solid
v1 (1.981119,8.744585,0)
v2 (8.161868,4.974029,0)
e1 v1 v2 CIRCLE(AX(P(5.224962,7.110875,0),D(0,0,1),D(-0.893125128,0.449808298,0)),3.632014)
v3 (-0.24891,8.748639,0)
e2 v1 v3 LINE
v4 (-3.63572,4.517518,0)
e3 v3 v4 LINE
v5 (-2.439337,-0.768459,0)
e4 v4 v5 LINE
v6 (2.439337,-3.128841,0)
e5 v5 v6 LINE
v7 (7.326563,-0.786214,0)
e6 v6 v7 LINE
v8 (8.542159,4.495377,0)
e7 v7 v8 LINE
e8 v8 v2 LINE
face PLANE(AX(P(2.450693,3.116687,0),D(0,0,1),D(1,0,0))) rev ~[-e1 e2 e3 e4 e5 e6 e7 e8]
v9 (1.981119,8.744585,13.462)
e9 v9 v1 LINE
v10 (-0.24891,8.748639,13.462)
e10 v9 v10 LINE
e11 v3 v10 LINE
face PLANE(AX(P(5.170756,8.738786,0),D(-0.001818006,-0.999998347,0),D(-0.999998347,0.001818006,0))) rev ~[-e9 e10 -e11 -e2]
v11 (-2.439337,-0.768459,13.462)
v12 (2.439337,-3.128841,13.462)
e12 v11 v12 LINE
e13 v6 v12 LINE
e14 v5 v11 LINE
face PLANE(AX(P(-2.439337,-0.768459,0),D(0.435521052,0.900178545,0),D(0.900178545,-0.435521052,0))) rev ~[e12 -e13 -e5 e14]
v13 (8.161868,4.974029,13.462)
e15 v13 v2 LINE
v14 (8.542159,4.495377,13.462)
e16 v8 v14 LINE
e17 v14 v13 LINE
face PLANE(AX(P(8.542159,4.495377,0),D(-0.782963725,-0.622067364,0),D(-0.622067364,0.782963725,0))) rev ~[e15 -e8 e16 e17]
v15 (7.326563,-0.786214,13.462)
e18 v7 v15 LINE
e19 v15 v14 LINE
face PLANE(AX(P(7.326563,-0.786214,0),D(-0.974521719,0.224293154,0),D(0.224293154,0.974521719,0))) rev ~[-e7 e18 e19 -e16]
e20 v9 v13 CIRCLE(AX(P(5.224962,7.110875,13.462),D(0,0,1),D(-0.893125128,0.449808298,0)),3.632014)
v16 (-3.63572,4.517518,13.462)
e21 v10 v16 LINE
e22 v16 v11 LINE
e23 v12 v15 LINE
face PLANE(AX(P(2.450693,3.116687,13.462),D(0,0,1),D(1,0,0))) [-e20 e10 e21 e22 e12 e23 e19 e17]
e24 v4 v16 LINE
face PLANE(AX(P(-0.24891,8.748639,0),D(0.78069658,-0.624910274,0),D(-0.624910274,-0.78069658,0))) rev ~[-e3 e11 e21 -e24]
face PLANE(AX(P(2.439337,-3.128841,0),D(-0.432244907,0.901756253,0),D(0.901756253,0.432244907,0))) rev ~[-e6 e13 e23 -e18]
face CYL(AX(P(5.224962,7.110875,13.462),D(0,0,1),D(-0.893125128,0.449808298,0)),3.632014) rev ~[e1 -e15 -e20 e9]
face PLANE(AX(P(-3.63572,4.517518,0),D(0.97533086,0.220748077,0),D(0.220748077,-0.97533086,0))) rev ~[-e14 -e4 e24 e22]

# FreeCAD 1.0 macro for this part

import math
import FreeCAD as App
import Part
import Sketcher

V = App.Vector
Q = App.Units.Quantity

doc = App.newDocument("Part")
body = doc.addObject("PartDesign::Body", "Body")

sketch1 = body.newObject("Sketcher::SketchObject", "Sketch")
sketch1.AttachmentSupport = (doc.getObject("XY_Plane"), [""])
sketch1.MapMode = "FlatFace"
sketch1.addGeometry(Part.LineSegment(V(-2, -1, 0), V(2, -3, 0)), False)
sketch1.addGeometry(Part.LineSegment(V(2, -3, 0), V(7, -1, 0)), False)
sketch1.addGeometry(Part.LineSegment(V(7, -1, 0), V(9, 4, 0)), False)
sketch1.addGeometry(Part.LineSegment(V(9, 4, 0), V(5, 9, 0)), False)
sketch1.addGeometry(Part.LineSegment(V(5, 9, 0), V(0, 9, 0)), False)
sketch1.addGeometry(Part.LineSegment(V(0, 9, 0), V(-4, 5, 0)), False)
sketch1.addGeometry(Part.LineSegment(V(-4, 5, 0), V(-2, -1, 0)), False)
sketch1.addConstraint(Sketcher.Constraint("Coincident", 0, 2, 1, 1))
sketch1.addConstraint(Sketcher.Constraint("Coincident", 1, 2, 2, 1))
sketch1.addConstraint(Sketcher.Constraint("Coincident", 2, 2, 3, 1))
sketch1.addConstraint(Sketcher.Constraint("Coincident", 3, 2, 4, 1))
sketch1.addConstraint(Sketcher.Constraint("Coincident", 4, 2, 5, 1))
sketch1.addConstraint(Sketcher.Constraint("Coincident", 5, 2, 6, 1))
sketch1.addConstraint(Sketcher.Constraint("Coincident", 6, 2, 0, 1))
sketch1.addConstraint(Sketcher.Constraint("Equal", 0, 1))
sketch1.addConstraint(Sketcher.Constraint("Equal", 1, 2))
sketch1.addConstraint(Sketcher.Constraint("Equal", 2, 3))
sketch1.addConstraint(Sketcher.Constraint("Equal", 3, 4))
sketch1.addConstraint(Sketcher.Constraint("Equal", 4, 5))
sketch1.addConstraint(Sketcher.Constraint("Equal", 5, 6))
sketch1.addConstraint(Sketcher.Constraint("DistanceY", 1, 2, 3, 2, Q("0.375 in")))
sketch1.addConstraint(Sketcher.Constraint("DistanceX", 6, 2, 1, 2, 9.7659))
sketch1.addConstraint(Sketcher.Constraint("DistanceY", 6, 2, 4, 2, 9.517098))
sketch1.addConstraint(Sketcher.Constraint("DistanceY", 0, 2, -1, 1, 3.128841))
sketch1.addConstraint(Sketcher.Constraint("DistanceX", -1, 1, 2, 2, 8.542159))
sketch1.addConstraint(Sketcher.Constraint("DistanceX", 4, 2, -1, 1, 0.24891))
sketch1.addConstraint(Sketcher.Constraint("DistanceY", -1, 1, 4, 2, 8.748639))
sketch1.addConstraint(Sketcher.Constraint("DistanceX", 5, 2, -1, 1, 3.63572))
pad1 = body.newObject("PartDesign::Pad", "Pad")
pad1.Profile = sketch1
pad1.Length = Q("0.53 in")

sketch2 = body.newObject("Sketcher::SketchObject", "Sketch001")
sketch2.AttachmentSupport = (doc.getObject("XY_Plane"), [""])
sketch2.MapMode = "FlatFace"
sketch2.AttachmentOffset = App.Placement(V(0, 0, 0.53 * 25.4), App.Rotation())
sketch2.addGeometry(Part.LineSegment(V(5.2, 8.7, 0), V(2, 8.7, 0)), False)
sketch2.addGeometry(Part.ArcOfCircle(Part.Circle(V(5.2, 7.1, 0), V(0, 0, 1), 3.6), math.radians(153), math.radians(324)), False)
sketch2.addGeometry(Part.LineSegment(V(8.2, 5, 0), V(5.2, 8.7, 0)), False)
sketch2.addConstraint(Sketcher.Constraint("Coincident", 0, 2, 1, 1))
sketch2.addConstraint(Sketcher.Constraint("Coincident", 1, 2, 2, 1))
sketch2.addConstraint(Sketcher.Constraint("Coincident", 2, 2, 0, 1))
sketch2.addConstraint(Sketcher.Constraint("Radius", 1, 3.632014))
sketch2.addConstraint(Sketcher.Constraint("DistanceY", 2, 2, 0, 2, 0.005799))
sketch2.addConstraint(Sketcher.Constraint("Distance", 2, 4.808341))
sketch2.addConstraint(Sketcher.Constraint("DistanceX", -1, 1, 0, 2, 1.981119))
sketch2.addConstraint(Sketcher.Constraint("DistanceX", -1, 1, 1, 2, 8.161868))
sketch2.addConstraint(Sketcher.Constraint("DistanceY", -1, 1, 1, 2, 4.974029))
sketch2.addConstraint(Sketcher.Constraint("DistanceY", 1, 3, 0, 2, 1.63371))
pocket1 = body.newObject("PartDesign::Pocket", "Pocket")
pocket1.Profile = sketch2
pocket1.Length = Q("1 in")

doc.recompute()
